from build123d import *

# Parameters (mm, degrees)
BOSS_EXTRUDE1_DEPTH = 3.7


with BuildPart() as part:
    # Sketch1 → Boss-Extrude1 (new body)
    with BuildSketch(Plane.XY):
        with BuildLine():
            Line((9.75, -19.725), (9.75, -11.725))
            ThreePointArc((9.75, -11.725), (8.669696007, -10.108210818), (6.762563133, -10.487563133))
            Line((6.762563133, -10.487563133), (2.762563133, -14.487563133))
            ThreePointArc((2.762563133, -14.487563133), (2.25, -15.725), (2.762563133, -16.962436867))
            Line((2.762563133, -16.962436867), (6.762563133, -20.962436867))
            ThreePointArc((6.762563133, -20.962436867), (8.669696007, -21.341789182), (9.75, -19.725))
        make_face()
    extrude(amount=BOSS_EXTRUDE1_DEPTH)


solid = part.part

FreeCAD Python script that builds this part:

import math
import FreeCAD as App
import Part
import Sketcher

V = App.Vector
Q = App.Units.Quantity

doc = App.newDocument("Part")
body = doc.addObject("PartDesign::Body", "Body")

sketch1 = body.newObject("Sketcher::SketchObject", "Sketch")
sketch1.AttachmentSupport = (doc.getObject("XY_Plane"), [""])
sketch1.MapMode = "FlatFace"
sketch1.addGeometry([
    Part.LineSegment(V(9.8, -19.7, 0), V(9.8, -11.7, 0)),
    Part.ArcOfCircle(Part.Circle(V(8, -11.7, 0), V(0, 0, 1), 1.8), math.radians(0), math.radians(135)),
    Part.LineSegment(V(6.8, -10.5, 0), V(2.8, -14.5, 0)),
    Part.ArcOfCircle(Part.Circle(V(4, -15.7, 0), V(0, 0, 1), 1.8), math.radians(135), math.radians(225)),
    Part.LineSegment(V(2.8, -17, 0), V(6.8, -21, 0)),
    Part.ArcOfCircle(Part.Circle(V(8, -19.7, 0), V(0, 0, 1), 1.8), math.radians(-135), math.radians(0)),
], False)
sketch1.addConstraint([
    Sketcher.Constraint("Tangent", 0, 2, 1, 1),
    Sketcher.Constraint("Tangent", 1, 2, 2, 1),
    Sketcher.Constraint("Tangent", 2, 2, 3, 1),
    Sketcher.Constraint("Tangent", 3, 2, 4, 1),
    Sketcher.Constraint("Tangent", 4, 2, 5, 1),
    Sketcher.Constraint("Tangent", 5, 2, 0, 1),
    Sketcher.Constraint("Vertical", 0),
    Sketcher.Constraint("Equal", 1, 3),
    Sketcher.Constraint("Equal", 3, 5),
    Sketcher.Constraint("Perpendicular", 2, 4),
    Sketcher.Constraint("Vertical", 2, 2, 3, 2),
    Sketcher.Constraint("DistanceY", 0, 1, 0, 2, Q("8 mm")),
    Sketcher.Constraint("Radius", 1, Q("1.75 mm")),
    Sketcher.Constraint("DistanceX", -1, 1, 1, 3, Q("8 mm")),
    Sketcher.Constraint("DistanceY", 1, 3, -1, 1, Q("11.725 mm")),
])
pad1 = body.newObject("PartDesign::Pad", "Pad")
pad1.Profile = sketch1
pad1.Length = 3.7

doc.recompute()
